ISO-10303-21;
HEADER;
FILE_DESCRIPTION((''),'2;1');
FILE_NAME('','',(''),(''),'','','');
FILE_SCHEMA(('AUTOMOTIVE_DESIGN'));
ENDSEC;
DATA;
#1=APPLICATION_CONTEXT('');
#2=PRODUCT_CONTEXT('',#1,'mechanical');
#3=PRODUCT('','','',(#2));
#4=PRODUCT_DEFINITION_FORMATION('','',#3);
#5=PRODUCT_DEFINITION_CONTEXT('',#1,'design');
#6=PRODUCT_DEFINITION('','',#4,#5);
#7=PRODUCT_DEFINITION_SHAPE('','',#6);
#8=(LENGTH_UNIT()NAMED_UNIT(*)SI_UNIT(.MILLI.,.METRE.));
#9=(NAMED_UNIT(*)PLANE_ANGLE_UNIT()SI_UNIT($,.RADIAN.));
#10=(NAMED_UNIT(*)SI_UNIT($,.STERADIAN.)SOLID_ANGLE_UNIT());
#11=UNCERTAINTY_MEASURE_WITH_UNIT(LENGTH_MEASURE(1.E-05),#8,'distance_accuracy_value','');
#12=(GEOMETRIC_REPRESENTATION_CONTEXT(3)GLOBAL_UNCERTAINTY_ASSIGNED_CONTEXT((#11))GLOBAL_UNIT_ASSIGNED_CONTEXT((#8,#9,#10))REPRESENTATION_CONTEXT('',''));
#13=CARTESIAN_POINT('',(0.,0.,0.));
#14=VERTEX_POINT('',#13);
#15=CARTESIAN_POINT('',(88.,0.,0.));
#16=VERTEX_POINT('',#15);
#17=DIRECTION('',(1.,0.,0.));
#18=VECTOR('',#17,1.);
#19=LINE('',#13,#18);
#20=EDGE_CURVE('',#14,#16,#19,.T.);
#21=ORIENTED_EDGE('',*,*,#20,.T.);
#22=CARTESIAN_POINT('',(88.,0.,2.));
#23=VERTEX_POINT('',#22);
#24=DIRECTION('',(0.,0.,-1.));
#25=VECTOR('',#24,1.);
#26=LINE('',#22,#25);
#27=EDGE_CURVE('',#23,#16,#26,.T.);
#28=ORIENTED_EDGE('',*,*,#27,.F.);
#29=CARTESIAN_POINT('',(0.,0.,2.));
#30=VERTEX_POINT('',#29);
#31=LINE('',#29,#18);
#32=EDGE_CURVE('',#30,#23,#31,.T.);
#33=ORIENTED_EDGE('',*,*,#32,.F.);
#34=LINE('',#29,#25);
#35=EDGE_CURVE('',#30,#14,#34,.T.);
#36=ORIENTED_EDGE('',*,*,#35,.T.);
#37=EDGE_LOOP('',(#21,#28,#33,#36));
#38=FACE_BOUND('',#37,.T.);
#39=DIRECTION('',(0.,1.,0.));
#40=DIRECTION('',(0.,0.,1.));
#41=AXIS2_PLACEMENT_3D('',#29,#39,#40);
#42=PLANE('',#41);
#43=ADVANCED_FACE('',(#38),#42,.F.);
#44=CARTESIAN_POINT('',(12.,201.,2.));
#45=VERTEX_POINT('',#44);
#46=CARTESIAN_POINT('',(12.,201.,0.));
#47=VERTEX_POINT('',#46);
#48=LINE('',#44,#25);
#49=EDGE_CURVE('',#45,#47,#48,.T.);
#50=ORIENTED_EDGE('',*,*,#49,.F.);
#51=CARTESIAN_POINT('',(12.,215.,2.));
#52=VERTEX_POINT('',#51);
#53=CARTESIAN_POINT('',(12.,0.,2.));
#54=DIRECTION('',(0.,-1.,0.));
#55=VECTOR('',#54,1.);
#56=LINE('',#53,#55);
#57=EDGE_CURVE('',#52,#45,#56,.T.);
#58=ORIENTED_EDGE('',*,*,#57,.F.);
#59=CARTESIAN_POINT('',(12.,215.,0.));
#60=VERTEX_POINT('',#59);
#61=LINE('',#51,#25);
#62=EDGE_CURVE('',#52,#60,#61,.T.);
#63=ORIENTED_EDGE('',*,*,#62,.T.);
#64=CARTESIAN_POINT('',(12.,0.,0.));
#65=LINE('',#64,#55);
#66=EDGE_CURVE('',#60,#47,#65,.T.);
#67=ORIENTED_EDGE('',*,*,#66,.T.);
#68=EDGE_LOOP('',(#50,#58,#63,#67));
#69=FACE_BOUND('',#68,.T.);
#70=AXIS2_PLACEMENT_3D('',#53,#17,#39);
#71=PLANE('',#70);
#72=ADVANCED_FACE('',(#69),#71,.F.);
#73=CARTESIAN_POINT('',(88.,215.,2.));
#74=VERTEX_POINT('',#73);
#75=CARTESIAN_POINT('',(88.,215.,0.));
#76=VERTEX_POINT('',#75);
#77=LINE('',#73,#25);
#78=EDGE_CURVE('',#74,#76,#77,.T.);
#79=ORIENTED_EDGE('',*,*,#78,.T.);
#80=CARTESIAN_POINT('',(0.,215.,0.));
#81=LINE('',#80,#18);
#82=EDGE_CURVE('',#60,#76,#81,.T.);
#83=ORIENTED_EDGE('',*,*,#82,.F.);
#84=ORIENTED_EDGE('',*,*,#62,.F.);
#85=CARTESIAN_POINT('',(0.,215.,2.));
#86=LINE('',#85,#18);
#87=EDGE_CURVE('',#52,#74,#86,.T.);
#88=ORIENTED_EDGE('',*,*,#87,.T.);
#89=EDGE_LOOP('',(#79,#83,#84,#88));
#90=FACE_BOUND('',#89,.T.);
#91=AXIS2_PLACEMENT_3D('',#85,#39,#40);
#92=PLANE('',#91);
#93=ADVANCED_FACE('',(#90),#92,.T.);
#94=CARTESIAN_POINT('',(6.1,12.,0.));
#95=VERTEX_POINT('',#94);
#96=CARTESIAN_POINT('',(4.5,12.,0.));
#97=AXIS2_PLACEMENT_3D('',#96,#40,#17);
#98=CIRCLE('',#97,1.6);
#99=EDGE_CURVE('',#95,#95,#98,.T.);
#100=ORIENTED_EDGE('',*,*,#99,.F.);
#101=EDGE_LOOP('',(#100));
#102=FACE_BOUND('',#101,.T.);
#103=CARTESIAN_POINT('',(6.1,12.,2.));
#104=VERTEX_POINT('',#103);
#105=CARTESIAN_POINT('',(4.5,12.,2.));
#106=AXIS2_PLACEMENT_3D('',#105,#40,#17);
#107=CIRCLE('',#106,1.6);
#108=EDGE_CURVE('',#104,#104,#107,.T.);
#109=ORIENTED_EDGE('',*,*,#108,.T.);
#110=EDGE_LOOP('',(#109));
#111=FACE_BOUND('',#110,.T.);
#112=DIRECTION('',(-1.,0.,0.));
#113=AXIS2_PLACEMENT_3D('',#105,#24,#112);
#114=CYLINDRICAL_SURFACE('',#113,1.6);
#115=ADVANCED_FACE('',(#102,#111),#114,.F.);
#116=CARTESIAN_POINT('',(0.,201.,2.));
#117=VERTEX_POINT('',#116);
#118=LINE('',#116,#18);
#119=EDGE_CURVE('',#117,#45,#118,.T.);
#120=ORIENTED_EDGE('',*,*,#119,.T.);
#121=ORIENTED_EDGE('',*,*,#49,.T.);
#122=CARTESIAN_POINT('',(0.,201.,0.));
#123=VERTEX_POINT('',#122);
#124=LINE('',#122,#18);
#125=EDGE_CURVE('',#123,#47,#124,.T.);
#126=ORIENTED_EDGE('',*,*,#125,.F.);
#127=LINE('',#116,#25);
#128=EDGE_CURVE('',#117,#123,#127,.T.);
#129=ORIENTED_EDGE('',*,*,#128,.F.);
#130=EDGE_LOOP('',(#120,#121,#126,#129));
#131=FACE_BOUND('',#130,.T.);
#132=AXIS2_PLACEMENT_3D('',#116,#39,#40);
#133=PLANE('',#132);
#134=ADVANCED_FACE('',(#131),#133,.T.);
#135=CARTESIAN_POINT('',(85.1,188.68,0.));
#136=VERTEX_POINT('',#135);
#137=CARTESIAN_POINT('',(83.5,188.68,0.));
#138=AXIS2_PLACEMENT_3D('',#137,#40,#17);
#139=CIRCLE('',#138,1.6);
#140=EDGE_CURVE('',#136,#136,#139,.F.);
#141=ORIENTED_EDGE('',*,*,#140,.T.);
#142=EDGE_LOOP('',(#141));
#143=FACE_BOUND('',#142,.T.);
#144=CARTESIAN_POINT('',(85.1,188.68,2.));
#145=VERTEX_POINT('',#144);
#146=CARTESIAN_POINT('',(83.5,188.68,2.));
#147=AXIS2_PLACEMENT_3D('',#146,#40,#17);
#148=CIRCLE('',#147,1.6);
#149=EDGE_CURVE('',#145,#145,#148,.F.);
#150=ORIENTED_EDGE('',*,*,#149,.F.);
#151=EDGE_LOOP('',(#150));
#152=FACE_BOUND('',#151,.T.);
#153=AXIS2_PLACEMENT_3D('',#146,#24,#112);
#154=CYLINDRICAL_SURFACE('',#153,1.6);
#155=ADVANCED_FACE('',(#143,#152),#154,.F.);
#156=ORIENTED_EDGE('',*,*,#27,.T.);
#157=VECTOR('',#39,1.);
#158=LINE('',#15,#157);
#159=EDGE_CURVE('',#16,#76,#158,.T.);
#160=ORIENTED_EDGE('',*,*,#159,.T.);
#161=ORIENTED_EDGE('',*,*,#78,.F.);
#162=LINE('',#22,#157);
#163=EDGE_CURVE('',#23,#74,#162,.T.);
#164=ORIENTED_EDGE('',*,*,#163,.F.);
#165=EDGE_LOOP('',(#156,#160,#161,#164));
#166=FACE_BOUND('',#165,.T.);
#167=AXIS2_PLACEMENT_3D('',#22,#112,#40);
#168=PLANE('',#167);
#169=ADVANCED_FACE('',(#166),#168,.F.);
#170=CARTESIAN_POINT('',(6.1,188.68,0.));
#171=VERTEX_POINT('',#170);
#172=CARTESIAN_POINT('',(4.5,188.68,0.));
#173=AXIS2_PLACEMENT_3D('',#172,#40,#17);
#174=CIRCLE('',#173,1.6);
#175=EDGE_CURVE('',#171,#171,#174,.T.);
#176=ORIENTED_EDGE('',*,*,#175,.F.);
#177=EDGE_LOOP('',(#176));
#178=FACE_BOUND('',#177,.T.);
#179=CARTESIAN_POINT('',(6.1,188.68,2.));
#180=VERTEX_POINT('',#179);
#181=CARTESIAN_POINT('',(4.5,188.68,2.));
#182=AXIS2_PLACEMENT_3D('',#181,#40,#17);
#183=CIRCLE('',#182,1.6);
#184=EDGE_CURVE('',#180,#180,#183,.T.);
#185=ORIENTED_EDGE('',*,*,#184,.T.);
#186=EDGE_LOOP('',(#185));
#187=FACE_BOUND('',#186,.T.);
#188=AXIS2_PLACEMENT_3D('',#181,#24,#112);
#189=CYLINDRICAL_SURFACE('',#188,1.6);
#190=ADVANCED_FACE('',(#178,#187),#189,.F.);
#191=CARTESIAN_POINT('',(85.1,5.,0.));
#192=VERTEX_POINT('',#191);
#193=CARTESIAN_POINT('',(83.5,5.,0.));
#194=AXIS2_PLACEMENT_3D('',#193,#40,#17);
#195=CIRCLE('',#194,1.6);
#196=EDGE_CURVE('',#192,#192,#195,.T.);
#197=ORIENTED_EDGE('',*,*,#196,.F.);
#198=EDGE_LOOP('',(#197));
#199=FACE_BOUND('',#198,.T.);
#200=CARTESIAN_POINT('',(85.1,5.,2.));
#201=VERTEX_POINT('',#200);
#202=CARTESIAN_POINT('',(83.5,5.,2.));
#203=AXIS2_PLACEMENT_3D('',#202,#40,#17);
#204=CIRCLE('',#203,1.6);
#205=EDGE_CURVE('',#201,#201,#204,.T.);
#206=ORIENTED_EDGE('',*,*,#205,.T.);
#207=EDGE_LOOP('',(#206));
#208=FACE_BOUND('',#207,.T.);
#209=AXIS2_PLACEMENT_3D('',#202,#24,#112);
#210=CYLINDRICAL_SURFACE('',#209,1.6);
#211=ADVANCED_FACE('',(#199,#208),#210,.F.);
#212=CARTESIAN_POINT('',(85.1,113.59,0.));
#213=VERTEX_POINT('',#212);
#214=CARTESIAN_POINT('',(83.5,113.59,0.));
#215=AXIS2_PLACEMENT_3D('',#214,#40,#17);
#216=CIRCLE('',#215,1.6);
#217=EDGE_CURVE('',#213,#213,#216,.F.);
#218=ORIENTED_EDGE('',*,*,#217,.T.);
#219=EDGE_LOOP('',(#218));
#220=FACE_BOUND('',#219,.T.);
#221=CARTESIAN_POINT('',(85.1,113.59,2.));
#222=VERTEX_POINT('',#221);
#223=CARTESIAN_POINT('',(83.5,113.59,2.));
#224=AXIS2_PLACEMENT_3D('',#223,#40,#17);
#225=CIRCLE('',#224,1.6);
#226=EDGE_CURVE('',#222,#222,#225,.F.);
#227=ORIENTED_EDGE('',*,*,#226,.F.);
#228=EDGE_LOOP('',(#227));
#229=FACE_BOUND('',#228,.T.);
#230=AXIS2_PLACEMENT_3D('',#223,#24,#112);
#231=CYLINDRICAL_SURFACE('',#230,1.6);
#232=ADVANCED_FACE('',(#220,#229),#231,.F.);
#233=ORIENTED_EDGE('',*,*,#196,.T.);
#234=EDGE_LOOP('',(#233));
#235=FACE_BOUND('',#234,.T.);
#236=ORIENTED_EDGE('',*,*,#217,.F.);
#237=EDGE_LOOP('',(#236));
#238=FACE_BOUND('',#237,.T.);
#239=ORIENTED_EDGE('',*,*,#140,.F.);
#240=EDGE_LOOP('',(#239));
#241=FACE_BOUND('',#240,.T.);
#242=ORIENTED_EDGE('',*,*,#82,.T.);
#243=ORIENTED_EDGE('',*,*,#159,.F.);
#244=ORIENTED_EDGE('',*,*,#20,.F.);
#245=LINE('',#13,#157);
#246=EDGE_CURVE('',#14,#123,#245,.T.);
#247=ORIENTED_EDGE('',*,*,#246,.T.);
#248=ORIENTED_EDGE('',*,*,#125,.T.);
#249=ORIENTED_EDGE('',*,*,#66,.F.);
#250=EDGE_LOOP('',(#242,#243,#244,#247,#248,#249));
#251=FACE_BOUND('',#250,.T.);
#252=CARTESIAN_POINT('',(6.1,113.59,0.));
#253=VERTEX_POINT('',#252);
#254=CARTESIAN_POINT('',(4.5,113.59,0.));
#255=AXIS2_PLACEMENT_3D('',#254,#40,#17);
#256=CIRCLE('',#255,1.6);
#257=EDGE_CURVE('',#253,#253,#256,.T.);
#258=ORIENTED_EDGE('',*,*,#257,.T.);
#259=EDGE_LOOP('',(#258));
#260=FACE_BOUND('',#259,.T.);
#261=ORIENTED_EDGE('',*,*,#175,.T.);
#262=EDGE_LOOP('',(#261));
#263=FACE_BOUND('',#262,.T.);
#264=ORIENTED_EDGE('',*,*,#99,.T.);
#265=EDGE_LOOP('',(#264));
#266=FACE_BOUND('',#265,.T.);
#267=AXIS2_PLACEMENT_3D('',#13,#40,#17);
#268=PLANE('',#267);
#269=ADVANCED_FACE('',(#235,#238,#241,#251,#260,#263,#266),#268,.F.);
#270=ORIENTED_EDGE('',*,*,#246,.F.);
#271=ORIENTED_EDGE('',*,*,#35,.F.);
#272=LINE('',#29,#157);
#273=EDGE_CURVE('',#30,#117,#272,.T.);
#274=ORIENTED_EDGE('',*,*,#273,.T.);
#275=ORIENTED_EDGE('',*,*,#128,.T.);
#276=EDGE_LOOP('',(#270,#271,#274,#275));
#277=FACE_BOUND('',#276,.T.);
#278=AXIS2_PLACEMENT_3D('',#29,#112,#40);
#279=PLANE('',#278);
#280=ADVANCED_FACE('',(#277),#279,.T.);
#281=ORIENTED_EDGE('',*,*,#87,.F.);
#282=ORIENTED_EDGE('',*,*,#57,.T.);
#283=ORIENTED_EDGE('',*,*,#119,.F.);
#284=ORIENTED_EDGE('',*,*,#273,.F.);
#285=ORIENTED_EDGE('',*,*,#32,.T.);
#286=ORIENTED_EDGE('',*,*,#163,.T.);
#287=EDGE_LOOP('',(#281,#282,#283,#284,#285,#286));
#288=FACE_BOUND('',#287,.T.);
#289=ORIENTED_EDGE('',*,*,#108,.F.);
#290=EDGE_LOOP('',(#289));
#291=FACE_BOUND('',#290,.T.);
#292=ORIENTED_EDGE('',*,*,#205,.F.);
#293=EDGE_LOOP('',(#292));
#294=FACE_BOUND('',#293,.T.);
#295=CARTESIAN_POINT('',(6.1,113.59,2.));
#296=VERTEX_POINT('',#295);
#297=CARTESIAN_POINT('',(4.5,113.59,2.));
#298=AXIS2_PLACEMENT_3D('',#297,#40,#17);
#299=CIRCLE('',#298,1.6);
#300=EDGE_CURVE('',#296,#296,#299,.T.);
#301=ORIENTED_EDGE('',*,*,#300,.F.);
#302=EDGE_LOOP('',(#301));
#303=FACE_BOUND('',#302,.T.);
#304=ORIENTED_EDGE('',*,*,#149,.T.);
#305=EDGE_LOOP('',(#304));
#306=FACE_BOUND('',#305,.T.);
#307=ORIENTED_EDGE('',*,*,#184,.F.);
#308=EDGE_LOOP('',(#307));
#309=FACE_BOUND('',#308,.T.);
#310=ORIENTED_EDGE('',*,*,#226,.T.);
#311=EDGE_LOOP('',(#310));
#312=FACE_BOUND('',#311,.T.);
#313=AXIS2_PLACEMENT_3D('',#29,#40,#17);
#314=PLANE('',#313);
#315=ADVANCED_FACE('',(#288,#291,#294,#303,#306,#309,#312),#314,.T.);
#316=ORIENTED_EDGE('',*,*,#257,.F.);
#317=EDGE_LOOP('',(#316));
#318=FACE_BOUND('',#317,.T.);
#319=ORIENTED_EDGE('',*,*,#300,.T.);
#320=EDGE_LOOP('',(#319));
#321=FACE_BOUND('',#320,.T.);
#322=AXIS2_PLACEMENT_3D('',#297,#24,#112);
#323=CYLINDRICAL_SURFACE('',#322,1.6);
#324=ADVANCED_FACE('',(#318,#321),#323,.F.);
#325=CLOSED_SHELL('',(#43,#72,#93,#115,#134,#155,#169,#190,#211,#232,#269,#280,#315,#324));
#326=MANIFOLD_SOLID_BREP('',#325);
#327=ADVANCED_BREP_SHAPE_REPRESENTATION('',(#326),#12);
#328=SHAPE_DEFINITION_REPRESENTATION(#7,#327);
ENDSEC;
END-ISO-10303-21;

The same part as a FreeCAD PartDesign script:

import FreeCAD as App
import Part
import Sketcher
from FreeCAD import Vector

doc = App.newDocument("Part")
body = doc.addObject("PartDesign::Body", "Body")

sketch1 = doc.addObject("Sketcher::SketchObject", "Sketch")
body.addObject(sketch1)
sketch1.AttachmentSupport = (doc.XY_Plane, [""])
sketch1.MapMode = "FlatFace"
sketch1.addGeometry([
    Part.LineSegment(Vector(0, 201, 0), Vector(0, 0, 0)),
    Part.LineSegment(Vector(0, 0, 0), Vector(88, 0, 0)),
    Part.LineSegment(Vector(88, 0, 0), Vector(88, 215, 0)),
    Part.LineSegment(Vector(88, 215, 0), Vector(12, 215, 0)),
    Part.LineSegment(Vector(12, 215, 0), Vector(12, 201, 0)),
    Part.LineSegment(Vector(12, 201, 0), Vector(0, 201, 0)),
    Part.Circle(Vector(4.5, 12, 0), Vector(0, 0, 1), 1.6),
    Part.Circle(Vector(83.5, 5, 0), Vector(0, 0, 1), 1.6),
    Part.Circle(Vector(4.5, 113.6, 0), Vector(0, 0, 1), 1.6),
    Part.Circle(Vector(4.5, 188.7, 0), Vector(0, 0, 1), 1.6),
    Part.Circle(Vector(83.5, 113.6, 0), Vector(0, 0, 1), 1.6),
    Part.Circle(Vector(83.5, 188.7, 0), Vector(0, 0, 1), 1.6),
], False)
sketch1.addConstraint([
    Sketcher.Constraint("Coincident", 0, 2, 1, 1),
    Sketcher.Constraint("Coincident", 1, 2, 2, 1),
    Sketcher.Constraint("Coincident", 2, 2, 3, 1),
    Sketcher.Constraint("Coincident", 3, 2, 4, 1),
    Sketcher.Constraint("Coincident", 4, 2, 5, 1),
    Sketcher.Constraint("Coincident", 5, 2, 0, 1),
    Sketcher.Constraint("Vertical", 0),
    Sketcher.Constraint("Horizontal", 1),
    Sketcher.Constraint("Vertical", 2),
    Sketcher.Constraint("Horizontal", 3),
    Sketcher.Constraint("Vertical", 4),
    Sketcher.Constraint("Horizontal", 5),
    Sketcher.Constraint("Coincident", 0, 2, -1, 1),
    Sketcher.Constraint("Equal", 6, 7),
    Sketcher.Constraint("Equal", 7, 8),
    Sketcher.Constraint("Equal", 8, 9),
    Sketcher.Constraint("Equal", 9, 10),
    Sketcher.Constraint("Equal", 10, 11),
    Sketcher.Constraint("Horizontal", 8, 3, 10, 3),
    Sketcher.Constraint("Horizontal", 9, 3, 11, 3),
    Sketcher.Constraint("Vertical", 6, 3, 8, 3),
    Sketcher.Constraint("Vertical", 8, 3, 9, 3),
    Sketcher.Constraint("Vertical", 7, 3, 10, 3),
    Sketcher.Constraint("Vertical", 10, 3, 11, 3),
    Sketcher.Constraint("Diameter", 6, 3.2),
    Sketcher.Constraint("DistanceX", 1, 1, 1, 2, 88.0),
    Sketcher.Constraint("DistanceX", 3, 2, 3, 1, 76.0),
    Sketcher.Constraint("DistanceY", 0, 2, 0, 1, 201.0),
    Sketcher.Constraint("DistanceY", 2, 1, 2, 2, 215.0),
    Sketcher.Constraint("DistanceY", -1, 1, 6, 3, 12.0),
    Sketcher.Constraint("DistanceY", -1, 1, 7, 3, 5.0),
    Sketcher.Constraint("DistanceX", 6, 3, 7, 3, 79.0),
    Sketcher.Constraint("DistanceX", -1, 1, 6, 3, 4.5),
    Sketcher.Constraint("DistanceY", -1, 1, 8, 3, 113.59),
    Sketcher.Constraint("DistanceY", -1, 1, 9, 3, 188.68),
])
pad1 = doc.addObject("PartDesign::Pad", "Pad")
body.addObject(pad1)
pad1.Profile = sketch1
pad1.Length = 2

doc.recompute()
